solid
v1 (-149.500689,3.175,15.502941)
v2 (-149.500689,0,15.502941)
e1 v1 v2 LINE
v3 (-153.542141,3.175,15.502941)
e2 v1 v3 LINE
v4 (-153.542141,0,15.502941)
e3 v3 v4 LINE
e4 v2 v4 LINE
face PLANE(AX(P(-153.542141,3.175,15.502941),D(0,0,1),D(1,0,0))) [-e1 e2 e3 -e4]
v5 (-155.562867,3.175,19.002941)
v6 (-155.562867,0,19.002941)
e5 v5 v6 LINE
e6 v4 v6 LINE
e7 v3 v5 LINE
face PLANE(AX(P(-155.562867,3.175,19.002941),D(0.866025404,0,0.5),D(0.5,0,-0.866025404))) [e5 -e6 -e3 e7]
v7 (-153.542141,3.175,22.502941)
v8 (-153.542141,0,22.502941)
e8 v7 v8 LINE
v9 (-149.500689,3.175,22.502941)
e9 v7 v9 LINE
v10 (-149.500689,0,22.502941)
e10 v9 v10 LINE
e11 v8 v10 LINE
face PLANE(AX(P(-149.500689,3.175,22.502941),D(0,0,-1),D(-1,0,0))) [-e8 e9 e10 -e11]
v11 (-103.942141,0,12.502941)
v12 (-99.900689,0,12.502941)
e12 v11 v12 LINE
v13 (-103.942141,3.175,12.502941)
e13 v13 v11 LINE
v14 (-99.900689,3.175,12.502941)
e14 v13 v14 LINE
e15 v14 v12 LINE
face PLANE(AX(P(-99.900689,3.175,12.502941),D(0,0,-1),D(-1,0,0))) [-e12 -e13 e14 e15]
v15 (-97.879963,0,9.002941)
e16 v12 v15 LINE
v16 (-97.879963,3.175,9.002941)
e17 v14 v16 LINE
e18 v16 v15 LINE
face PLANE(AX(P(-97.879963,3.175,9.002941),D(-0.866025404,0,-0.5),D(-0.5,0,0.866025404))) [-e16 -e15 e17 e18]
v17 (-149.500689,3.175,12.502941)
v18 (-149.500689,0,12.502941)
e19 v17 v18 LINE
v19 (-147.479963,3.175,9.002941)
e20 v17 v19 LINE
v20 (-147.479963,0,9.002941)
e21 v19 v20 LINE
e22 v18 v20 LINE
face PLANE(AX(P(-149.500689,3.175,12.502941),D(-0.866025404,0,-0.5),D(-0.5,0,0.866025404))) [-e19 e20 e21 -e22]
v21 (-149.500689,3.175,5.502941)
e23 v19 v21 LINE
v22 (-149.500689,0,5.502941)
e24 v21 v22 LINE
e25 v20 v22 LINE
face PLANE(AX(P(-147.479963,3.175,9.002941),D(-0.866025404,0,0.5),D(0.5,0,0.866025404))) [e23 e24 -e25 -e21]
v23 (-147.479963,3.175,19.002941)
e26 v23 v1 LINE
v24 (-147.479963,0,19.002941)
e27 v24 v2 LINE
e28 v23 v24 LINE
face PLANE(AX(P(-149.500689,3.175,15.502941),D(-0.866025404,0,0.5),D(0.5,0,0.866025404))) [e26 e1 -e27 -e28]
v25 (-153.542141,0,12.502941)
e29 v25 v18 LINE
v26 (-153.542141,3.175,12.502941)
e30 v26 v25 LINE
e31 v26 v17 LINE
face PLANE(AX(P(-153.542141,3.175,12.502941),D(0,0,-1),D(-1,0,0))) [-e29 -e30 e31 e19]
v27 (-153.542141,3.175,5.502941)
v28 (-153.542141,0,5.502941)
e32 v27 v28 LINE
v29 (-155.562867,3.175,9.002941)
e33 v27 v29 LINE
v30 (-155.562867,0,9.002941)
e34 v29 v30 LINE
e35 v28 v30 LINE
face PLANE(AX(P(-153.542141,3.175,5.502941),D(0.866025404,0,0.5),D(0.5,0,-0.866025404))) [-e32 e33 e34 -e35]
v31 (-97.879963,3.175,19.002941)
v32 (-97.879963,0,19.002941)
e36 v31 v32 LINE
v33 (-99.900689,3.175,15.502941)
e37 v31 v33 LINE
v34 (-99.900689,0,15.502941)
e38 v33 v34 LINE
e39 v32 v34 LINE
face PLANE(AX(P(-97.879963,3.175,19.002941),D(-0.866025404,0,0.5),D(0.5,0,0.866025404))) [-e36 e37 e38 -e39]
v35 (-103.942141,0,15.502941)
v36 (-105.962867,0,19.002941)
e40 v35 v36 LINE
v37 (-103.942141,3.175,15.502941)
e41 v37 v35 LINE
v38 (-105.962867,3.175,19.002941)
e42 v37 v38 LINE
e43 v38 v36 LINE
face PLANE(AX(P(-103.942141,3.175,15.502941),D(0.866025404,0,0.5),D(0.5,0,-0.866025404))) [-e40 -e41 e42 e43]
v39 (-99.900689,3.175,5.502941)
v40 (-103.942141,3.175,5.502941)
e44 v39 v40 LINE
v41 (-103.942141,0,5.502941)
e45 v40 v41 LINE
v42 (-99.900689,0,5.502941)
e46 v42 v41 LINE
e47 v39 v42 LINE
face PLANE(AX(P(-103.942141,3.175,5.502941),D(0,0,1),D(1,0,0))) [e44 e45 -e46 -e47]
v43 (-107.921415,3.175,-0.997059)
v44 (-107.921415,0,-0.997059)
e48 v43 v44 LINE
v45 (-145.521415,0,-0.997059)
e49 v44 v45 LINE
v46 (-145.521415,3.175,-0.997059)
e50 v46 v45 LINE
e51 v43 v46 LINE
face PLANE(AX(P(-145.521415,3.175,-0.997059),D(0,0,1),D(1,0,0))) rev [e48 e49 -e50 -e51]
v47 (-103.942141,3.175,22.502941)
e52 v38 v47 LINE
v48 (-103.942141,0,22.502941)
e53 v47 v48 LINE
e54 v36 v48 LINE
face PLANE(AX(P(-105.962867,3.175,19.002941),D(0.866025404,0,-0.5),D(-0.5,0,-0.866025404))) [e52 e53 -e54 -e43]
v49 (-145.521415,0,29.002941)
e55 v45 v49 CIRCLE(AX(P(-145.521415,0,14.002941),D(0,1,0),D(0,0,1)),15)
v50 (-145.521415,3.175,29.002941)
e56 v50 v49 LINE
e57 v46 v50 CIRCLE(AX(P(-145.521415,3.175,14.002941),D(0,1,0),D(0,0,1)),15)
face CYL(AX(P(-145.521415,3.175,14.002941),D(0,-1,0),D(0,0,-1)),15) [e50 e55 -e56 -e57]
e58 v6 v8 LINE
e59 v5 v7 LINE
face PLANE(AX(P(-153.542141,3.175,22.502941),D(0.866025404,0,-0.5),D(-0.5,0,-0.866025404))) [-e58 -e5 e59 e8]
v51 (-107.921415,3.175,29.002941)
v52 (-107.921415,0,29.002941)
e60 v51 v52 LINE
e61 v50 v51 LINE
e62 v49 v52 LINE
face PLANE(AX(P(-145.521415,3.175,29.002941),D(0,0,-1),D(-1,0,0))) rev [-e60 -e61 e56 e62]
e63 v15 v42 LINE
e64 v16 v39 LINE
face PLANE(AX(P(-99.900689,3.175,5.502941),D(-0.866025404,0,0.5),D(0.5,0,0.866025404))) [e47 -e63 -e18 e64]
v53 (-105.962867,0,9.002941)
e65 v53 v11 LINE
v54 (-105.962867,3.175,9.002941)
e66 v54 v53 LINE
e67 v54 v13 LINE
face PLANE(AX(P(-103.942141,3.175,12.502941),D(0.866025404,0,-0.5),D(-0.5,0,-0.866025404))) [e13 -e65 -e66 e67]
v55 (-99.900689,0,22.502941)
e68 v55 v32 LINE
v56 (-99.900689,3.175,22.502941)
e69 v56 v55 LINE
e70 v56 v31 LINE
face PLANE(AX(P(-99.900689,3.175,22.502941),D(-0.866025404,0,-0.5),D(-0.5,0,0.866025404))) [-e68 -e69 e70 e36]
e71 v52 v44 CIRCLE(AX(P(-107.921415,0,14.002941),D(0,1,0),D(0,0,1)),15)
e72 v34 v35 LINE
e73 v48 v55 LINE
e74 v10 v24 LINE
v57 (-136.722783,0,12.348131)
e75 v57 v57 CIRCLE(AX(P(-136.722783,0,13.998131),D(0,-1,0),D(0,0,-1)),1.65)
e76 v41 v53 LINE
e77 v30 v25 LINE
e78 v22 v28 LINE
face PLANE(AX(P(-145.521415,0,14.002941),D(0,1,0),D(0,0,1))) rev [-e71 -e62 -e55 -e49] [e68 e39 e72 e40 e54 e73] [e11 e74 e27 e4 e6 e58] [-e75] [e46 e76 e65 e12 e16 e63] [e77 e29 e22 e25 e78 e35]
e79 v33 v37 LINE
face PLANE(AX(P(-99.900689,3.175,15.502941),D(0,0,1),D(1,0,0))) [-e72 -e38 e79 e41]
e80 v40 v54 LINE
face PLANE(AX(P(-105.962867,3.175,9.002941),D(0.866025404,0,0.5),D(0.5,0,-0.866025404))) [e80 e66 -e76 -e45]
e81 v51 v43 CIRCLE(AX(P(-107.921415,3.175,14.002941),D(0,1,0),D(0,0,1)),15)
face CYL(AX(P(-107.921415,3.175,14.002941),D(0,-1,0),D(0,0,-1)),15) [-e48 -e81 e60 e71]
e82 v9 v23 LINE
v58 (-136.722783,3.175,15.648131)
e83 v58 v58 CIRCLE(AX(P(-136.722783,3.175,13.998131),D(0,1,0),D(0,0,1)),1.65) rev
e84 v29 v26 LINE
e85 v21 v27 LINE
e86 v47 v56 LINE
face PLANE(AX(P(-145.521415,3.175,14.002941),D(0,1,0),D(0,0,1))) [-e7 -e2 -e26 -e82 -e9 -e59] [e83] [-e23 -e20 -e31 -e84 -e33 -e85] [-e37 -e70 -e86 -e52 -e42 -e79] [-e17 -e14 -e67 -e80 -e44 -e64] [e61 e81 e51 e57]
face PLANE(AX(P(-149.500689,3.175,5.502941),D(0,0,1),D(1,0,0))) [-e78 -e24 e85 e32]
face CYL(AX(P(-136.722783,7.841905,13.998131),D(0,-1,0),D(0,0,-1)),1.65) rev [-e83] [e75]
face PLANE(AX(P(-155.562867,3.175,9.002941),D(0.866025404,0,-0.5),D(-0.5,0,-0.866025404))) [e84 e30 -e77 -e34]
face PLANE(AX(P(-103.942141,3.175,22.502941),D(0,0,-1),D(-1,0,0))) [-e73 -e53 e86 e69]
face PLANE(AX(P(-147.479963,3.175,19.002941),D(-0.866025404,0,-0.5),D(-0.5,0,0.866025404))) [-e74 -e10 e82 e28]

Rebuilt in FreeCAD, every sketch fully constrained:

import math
import FreeCAD as App
import Part
import Sketcher

V = App.Vector
Q = App.Units.Quantity

doc = App.newDocument("Part")
params = doc.addObject("Spreadsheet::Sheet", "Params")
for row, (alias, value) in enumerate([
    ("sketch1_radius", "15 mm"),
    ("sketch1_width", "37.6 mm"),
    ("pad1_length", "3.175 mm"),
    ("sketch2_diameter", "3.3 mm"),
    ("pocket1_length", "3.175 mm"),
], start=1):
    params.set(f"A{row}", alias)
    params.set(f"B{row}", "=" + value)
    params.setAlias(f"B{row}", alias)

body = doc.addObject("PartDesign::Body", "Body")

sketch1 = body.newObject("Sketcher::SketchObject", "Sketch")
sketch1.AttachmentSupport = (doc.getObject("XZ_Plane"), [""])
sketch1.MapMode = "FlatFace"
sketch1.addGeometry(Part.LineSegment(V(-107.9, -1, 0), V(-145.5, -1, 0)), False)
sketch1.addGeometry(Part.ArcOfCircle(Part.Circle(V(-145.5, 14, 0), V(0, 0, 1), 15), math.radians(90), math.radians(270)), False)
sketch1.addGeometry(Part.LineSegment(V(-145.5, 29, 0), V(-107.9, 29, 0)), False)
sketch1.addGeometry(Part.ArcOfCircle(Part.Circle(V(-107.9, 14, 0), V(0, 0, 1), 15), math.radians(-90), math.radians(90)), False)
sketch1.addGeometry(Part.LineSegment(V(-103.9, 15.5, 0), V(-99.9, 15.5, 0)), False)
sketch1.addGeometry(Part.LineSegment(V(-99.9, 15.5, 0), V(-97.9, 19, 0)), False)
sketch1.addGeometry(Part.LineSegment(V(-97.9, 19, 0), V(-99.9, 22.5, 0)), False)
sketch1.addGeometry(Part.LineSegment(V(-99.9, 22.5, 0), V(-103.9, 22.5, 0)), False)
sketch1.addGeometry(Part.LineSegment(V(-103.9, 22.5, 0), V(-106, 19, 0)), False)
sketch1.addGeometry(Part.LineSegment(V(-106, 19, 0), V(-103.9, 15.5, 0)), False)
sketch1.addGeometry(Part.LineSegment(V(-153.5, 15.5, 0), V(-149.5, 15.5, 0)), False)
sketch1.addGeometry(Part.LineSegment(V(-149.5, 15.5, 0), V(-147.5, 19, 0)), False)
sketch1.addGeometry(Part.LineSegment(V(-147.5, 19, 0), V(-149.5, 22.5, 0)), False)
sketch1.addGeometry(Part.LineSegment(V(-149.5, 22.5, 0), V(-153.5, 22.5, 0)), False)
sketch1.addGeometry(Part.LineSegment(V(-153.5, 22.5, 0), V(-155.6, 19, 0)), False)
sketch1.addGeometry(Part.LineSegment(V(-155.6, 19, 0), V(-153.5, 15.5, 0)), False)
sketch1.addGeometry(Part.LineSegment(V(-99.9, 12.5, 0), V(-103.9, 12.5, 0)), False)
sketch1.addGeometry(Part.LineSegment(V(-103.9, 12.5, 0), V(-106, 9, 0)), False)
sketch1.addGeometry(Part.LineSegment(V(-106, 9, 0), V(-103.9, 5.5, 0)), False)
sketch1.addGeometry(Part.LineSegment(V(-103.9, 5.5, 0), V(-99.9, 5.5, 0)), False)
sketch1.addGeometry(Part.LineSegment(V(-99.9, 5.5, 0), V(-97.9, 9, 0)), False)
sketch1.addGeometry(Part.LineSegment(V(-97.9, 9, 0), V(-99.9, 12.5, 0)), False)
sketch1.addGeometry(Part.LineSegment(V(-149.5, 12.5, 0), V(-153.5, 12.5, 0)), False)
sketch1.addGeometry(Part.LineSegment(V(-153.5, 12.5, 0), V(-155.6, 9, 0)), False)
sketch1.addGeometry(Part.LineSegment(V(-155.6, 9, 0), V(-153.5, 5.5, 0)), False)
sketch1.addGeometry(Part.LineSegment(V(-153.5, 5.5, 0), V(-149.5, 5.5, 0)), False)
sketch1.addGeometry(Part.LineSegment(V(-149.5, 5.5, 0), V(-147.5, 9, 0)), False)
sketch1.addGeometry(Part.LineSegment(V(-147.5, 9, 0), V(-149.5, 12.5, 0)), False)
sketch1.addConstraint(Sketcher.Constraint("Tangent", 0, 2, 1, 2))
sketch1.addConstraint(Sketcher.Constraint("Tangent", 1, 1, 2, 1))
sketch1.addConstraint(Sketcher.Constraint("Tangent", 2, 2, 3, 2))
sketch1.addConstraint(Sketcher.Constraint("Tangent", 3, 1, 0, 1))
sketch1.addConstraint(Sketcher.Constraint("Coincident", 4, 2, 5, 1))
sketch1.addConstraint(Sketcher.Constraint("Coincident", 5, 2, 6, 1))
sketch1.addConstraint(Sketcher.Constraint("Coincident", 6, 2, 7, 1))
sketch1.addConstraint(Sketcher.Constraint("Coincident", 7, 2, 8, 1))
sketch1.addConstraint(Sketcher.Constraint("Coincident", 8, 2, 9, 1))
sketch1.addConstraint(Sketcher.Constraint("Coincident", 9, 2, 4, 1))
sketch1.addConstraint(Sketcher.Constraint("Coincident", 10, 2, 11, 1))
sketch1.addConstraint(Sketcher.Constraint("Coincident", 11, 2, 12, 1))
sketch1.addConstraint(Sketcher.Constraint("Coincident", 12, 2, 13, 1))
sketch1.addConstraint(Sketcher.Constraint("Coincident", 13, 2, 14, 1))
sketch1.addConstraint(Sketcher.Constraint("Coincident", 14, 2, 15, 1))
sketch1.addConstraint(Sketcher.Constraint("Coincident", 15, 2, 10, 1))
sketch1.addConstraint(Sketcher.Constraint("Coincident", 16, 2, 17, 1))
sketch1.addConstraint(Sketcher.Constraint("Coincident", 17, 2, 18, 1))
sketch1.addConstraint(Sketcher.Constraint("Coincident", 18, 2, 19, 1))
sketch1.addConstraint(Sketcher.Constraint("Coincident", 19, 2, 20, 1))
sketch1.addConstraint(Sketcher.Constraint("Coincident", 20, 2, 21, 1))
sketch1.addConstraint(Sketcher.Constraint("Coincident", 21, 2, 16, 1))
sketch1.addConstraint(Sketcher.Constraint("Coincident", 22, 2, 23, 1))
sketch1.addConstraint(Sketcher.Constraint("Coincident", 23, 2, 24, 1))
sketch1.addConstraint(Sketcher.Constraint("Coincident", 24, 2, 25, 1))
sketch1.addConstraint(Sketcher.Constraint("Coincident", 25, 2, 26, 1))
sketch1.addConstraint(Sketcher.Constraint("Coincident", 26, 2, 27, 1))
sketch1.addConstraint(Sketcher.Constraint("Coincident", 27, 2, 22, 1))
sketch1.addConstraint(Sketcher.Constraint("Horizontal", 0))
sketch1.addConstraint(Sketcher.Constraint("Horizontal", 2))
sketch1.addConstraint(Sketcher.Constraint("Horizontal", 4))
sketch1.addConstraint(Sketcher.Constraint("Horizontal", 7))
sketch1.addConstraint(Sketcher.Constraint("Horizontal", 10))
sketch1.addConstraint(Sketcher.Constraint("Horizontal", 13))
sketch1.addConstraint(Sketcher.Constraint("Horizontal", 16))
sketch1.addConstraint(Sketcher.Constraint("Horizontal", 19))
sketch1.addConstraint(Sketcher.Constraint("Horizontal", 22))
sketch1.addConstraint(Sketcher.Constraint("Horizontal", 25))
sketch1.addConstraint(Sketcher.Constraint("Parallel", 5, 8))
sketch1.addConstraint(Sketcher.Constraint("Parallel", 6, 9))
sketch1.addConstraint(Sketcher.Constraint("Parallel", 8, 11))
sketch1.addConstraint(Sketcher.Constraint("Parallel", 9, 12))
sketch1.addConstraint(Sketcher.Constraint("Parallel", 11, 14))
sketch1.addConstraint(Sketcher.Constraint("Parallel", 12, 15))
sketch1.addConstraint(Sketcher.Constraint("Parallel", 14, 17))
sketch1.addConstraint(Sketcher.Constraint("Parallel", 15, 18))
sketch1.addConstraint(Sketcher.Constraint("Parallel", 17, 20))
sketch1.addConstraint(Sketcher.Constraint("Parallel", 18, 21))
sketch1.addConstraint(Sketcher.Constraint("Parallel", 20, 23))
sketch1.addConstraint(Sketcher.Constraint("Parallel", 21, 24))
sketch1.addConstraint(Sketcher.Constraint("Parallel", 23, 26))
sketch1.addConstraint(Sketcher.Constraint("Parallel", 24, 27))
sketch1.addConstraint(Sketcher.Constraint("Horizontal", 5, 2, 8, 2))
sketch1.addConstraint(Sketcher.Constraint("Horizontal", 9, 2, 10, 2))
sketch1.addConstraint(Sketcher.Constraint("Horizontal", 8, 2, 11, 2))
sketch1.addConstraint(Sketcher.Constraint("Horizontal", 7, 2, 12, 2))
sketch1.addConstraint(Sketcher.Constraint("Horizontal", 11, 2, 14, 2))
sketch1.addConstraint(Sketcher.Constraint("Horizontal", 17, 2, 20, 2))
sketch1.addConstraint(Sketcher.Constraint("Horizontal", 21, 2, 22, 2))
sketch1.addConstraint(Sketcher.Constraint("Horizontal", 20, 2, 23, 2))
sketch1.addConstraint(Sketcher.Constraint("Horizontal", 19, 2, 24, 2))
sketch1.addConstraint(Sketcher.Constraint("Horizontal", 23, 2, 26, 2))
sketch1.addConstraint(Sketcher.Constraint("Vertical", 4, 2, 6, 2))
sketch1.addConstraint(Sketcher.Constraint("Vertical", 7, 2, 9, 2))
sketch1.addConstraint(Sketcher.Constraint("Vertical", 9, 2, 16, 2))
sketch1.addConstraint(Sketcher.Constraint("Vertical", 8, 2, 17, 2))
sketch1.addConstraint(Sketcher.Constraint("Vertical", 16, 2, 18, 2))
sketch1.addConstraint(Sketcher.Constraint("Vertical", 6, 2, 19, 2))
sketch1.addConstraint(Sketcher.Constraint("Vertical", 15, 2, 22, 2))
sketch1.addConstraint(Sketcher.Constraint("Vertical", 12, 2, 25, 2))
sketch1.addConstraint(Sketcher.Constraint("Equal", 7, 10))
sketch1.addConstraint(Sketcher.Constraint("Radius", 1, 15.0))
sketch1.addConstraint(Sketcher.Constraint("Angle", 5, Q("60 deg")))
sketch1.addConstraint(Sketcher.Constraint("DistanceX", 0, 2, 0, 1, 37.6))
sketch1.addConstraint(Sketcher.Constraint("DistanceY", 3, 3, 5, 2, 5.0))
sketch1.addConstraint(Sketcher.Constraint("DistanceY", 4, 2, 6, 2, 7.0))
sketch1.addConstraint(Sketcher.Constraint("DistanceY", 16, 2, 9, 2, 3.0))
sketch1.addConstraint(Sketcher.Constraint("DistanceX", 4, 1, 4, 2, 4.041452))
sketch1.addConstraint(Sketcher.Constraint("DistanceY", -1, 1, 1, 3, 14.002941))
sketch1.addConstraint(Sketcher.Constraint("DistanceX", 4, 2, -1, 1, 99.900689))
sketch1.addConstraint(Sketcher.Constraint("DistanceX", 10, 2, -1, 1, 149.500689))
sketch1.addConstraint(Sketcher.Constraint("DistanceX", 3, 3, 5, 2, 10.041452))
sketch1.setExpression("Constraints[71]", "Params.sketch1_radius")
sketch1.setExpression("Constraints[73]", "Params.sketch1_width")
pad1 = body.newObject("PartDesign::Pad", "Pad")
pad1.Profile = sketch1
pad1.setExpression("Length", "Params.pad1_length")
pad1.Reversed = True

sketch2 = body.newObject("Sketcher::SketchObject", "Sketch001")
sketch2.AttachmentSupport = (doc.getObject("XZ_Plane"), [""])
sketch2.MapMode = "FlatFace"
sketch2.addGeometry(Part.Circle(V(-136.7, 14, 0), V(0, 0, 1), 1.6), False)
sketch2.addConstraint(Sketcher.Constraint("Diameter", 0, 3.3))
sketch2.addConstraint(Sketcher.Constraint("DistanceY", -1, 1, 0, 3, 13.998131))
sketch2.addConstraint(Sketcher.Constraint("DistanceX", 0, 3, -1, 1, 136.722783))
sketch2.setExpression("Constraints[0]", "Params.sketch2_diameter")
pocket1 = body.newObject("PartDesign::Pocket", "Pocket")
pocket1.Profile = sketch2
pocket1.setExpression("Length", "Params.pocket1_length")

doc.recompute()
